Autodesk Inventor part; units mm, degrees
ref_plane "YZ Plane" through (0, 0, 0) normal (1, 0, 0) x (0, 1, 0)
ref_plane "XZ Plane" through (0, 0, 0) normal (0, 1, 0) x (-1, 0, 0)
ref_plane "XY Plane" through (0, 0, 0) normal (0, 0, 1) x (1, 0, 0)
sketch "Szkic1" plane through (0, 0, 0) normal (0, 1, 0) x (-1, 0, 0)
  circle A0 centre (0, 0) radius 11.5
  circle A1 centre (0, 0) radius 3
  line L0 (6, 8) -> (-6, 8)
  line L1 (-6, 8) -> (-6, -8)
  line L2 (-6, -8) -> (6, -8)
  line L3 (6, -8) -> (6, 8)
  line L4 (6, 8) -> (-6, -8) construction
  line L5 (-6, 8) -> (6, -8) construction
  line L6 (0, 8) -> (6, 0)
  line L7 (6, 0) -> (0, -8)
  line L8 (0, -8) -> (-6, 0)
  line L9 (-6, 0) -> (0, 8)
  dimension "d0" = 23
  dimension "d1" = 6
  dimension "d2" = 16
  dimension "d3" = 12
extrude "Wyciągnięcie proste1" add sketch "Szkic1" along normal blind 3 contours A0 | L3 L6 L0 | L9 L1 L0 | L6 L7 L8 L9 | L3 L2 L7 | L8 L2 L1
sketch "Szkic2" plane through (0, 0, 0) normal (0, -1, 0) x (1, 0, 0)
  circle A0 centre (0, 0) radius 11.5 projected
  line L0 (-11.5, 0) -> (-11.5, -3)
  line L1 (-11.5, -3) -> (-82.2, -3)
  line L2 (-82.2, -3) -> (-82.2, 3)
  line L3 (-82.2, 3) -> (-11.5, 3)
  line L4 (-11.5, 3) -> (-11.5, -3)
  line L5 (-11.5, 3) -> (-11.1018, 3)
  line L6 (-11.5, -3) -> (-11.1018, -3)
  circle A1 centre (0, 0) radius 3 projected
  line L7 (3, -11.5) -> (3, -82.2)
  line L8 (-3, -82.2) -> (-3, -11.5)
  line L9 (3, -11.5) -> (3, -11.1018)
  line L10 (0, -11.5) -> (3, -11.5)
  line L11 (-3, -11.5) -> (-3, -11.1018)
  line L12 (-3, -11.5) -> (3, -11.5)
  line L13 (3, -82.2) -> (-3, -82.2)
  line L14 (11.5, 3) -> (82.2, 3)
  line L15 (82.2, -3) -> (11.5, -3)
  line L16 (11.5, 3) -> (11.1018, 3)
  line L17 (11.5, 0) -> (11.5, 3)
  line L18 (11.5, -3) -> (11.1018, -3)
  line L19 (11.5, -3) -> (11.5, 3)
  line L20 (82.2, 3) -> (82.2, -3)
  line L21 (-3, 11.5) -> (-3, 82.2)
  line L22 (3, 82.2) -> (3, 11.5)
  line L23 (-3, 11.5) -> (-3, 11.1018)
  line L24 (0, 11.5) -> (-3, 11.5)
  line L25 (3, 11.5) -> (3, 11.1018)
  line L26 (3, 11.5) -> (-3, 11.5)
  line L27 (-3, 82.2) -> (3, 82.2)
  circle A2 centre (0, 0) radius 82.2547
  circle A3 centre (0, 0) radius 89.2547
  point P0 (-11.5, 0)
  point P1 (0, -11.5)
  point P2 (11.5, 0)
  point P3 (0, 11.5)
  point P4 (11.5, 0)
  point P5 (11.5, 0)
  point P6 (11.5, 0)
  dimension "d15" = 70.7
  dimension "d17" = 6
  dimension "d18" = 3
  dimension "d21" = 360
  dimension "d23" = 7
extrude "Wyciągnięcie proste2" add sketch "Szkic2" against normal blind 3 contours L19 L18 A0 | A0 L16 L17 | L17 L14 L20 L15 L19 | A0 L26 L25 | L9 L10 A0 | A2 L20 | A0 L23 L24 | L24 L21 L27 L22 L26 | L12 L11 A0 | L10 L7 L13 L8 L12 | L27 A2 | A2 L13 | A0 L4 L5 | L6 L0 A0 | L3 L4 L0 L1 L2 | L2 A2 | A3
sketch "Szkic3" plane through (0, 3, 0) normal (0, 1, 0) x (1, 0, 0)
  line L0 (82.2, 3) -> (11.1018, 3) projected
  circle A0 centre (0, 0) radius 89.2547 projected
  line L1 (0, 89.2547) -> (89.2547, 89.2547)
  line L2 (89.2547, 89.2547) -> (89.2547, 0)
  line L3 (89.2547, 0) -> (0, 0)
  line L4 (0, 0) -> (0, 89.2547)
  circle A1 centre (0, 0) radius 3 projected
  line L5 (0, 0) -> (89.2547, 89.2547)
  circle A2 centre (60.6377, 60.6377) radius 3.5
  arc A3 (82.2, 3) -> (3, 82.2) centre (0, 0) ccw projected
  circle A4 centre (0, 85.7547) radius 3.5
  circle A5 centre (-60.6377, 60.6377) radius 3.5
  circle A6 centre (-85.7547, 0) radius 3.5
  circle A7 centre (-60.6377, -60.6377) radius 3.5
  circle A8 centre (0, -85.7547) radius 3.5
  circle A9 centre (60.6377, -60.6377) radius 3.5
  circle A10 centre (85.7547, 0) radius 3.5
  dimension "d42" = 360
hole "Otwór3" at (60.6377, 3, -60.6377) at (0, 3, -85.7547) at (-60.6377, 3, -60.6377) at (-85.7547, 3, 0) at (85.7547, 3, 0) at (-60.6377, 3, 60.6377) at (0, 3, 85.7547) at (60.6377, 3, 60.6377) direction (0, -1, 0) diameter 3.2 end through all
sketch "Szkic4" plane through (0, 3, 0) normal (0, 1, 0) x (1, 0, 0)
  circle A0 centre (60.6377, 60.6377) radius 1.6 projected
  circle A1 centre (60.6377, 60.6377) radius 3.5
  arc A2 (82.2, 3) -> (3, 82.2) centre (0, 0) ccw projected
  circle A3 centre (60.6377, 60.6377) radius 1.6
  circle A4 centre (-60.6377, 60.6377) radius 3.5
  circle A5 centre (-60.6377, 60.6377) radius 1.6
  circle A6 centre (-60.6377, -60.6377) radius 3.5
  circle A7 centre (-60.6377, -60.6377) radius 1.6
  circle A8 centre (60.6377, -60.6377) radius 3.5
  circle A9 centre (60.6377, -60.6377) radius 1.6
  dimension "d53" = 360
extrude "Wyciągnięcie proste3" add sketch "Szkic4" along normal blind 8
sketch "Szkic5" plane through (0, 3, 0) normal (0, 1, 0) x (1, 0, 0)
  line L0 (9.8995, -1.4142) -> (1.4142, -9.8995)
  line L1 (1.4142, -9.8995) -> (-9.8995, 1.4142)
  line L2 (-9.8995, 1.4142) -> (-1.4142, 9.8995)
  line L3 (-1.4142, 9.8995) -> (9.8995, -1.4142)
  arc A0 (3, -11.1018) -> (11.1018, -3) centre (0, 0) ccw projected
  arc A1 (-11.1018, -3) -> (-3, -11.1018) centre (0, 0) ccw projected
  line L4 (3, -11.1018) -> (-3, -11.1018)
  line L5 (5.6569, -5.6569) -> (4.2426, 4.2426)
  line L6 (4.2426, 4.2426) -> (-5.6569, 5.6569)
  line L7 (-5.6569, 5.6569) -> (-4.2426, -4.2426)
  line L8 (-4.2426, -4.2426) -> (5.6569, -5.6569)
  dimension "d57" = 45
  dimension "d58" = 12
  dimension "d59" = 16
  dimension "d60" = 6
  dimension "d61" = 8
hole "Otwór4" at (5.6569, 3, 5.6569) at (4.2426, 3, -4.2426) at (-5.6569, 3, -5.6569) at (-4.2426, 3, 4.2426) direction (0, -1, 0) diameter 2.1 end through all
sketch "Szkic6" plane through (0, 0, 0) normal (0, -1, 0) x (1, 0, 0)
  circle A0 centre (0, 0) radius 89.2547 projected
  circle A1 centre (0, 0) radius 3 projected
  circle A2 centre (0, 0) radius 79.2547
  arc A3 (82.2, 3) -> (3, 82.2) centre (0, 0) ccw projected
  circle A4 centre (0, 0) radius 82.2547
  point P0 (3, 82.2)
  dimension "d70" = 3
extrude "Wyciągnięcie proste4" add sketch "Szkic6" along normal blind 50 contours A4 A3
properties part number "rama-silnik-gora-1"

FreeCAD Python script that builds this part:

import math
import FreeCAD as App
import Part
import Sketcher

V = App.Vector

doc = App.newDocument("Part")
body = doc.addObject("PartDesign::Body", "Body")

# Sketch on XZ plane
sketch1 = doc.addObject("Sketcher::SketchObject", "Sketch")
body.addObject(sketch1)
sketch1.AttachmentSupport = (doc.XZ_Plane, [""])
sketch1.MapMode = "FlatFace"
sketch1.addGeometry([
    Part.Circle(V(0, 0, 0), V(0, 0, 1), 11.5),
    Part.Circle(V(0, 0, 0), V(0, 0, 1), 3),
], False)
sketch1.addConstraint([
    Sketcher.Constraint("Coincident", 0, 3, -1, 1),
    Sketcher.Constraint("Coincident", 1, 3, -1, 1),
    Sketcher.Constraint("Diameter", 0, 23.0),
    Sketcher.Constraint("Diameter", 1, 6.0),
])
pad1 = doc.addObject("PartDesign::Pad", "Pad")
body.addObject(pad1)
pad1.Profile = sketch1
pad1.Length = 3
pad1.Reversed = True

# Sketch on XZ plane
sketch2 = doc.addObject("Sketcher::SketchObject", "Sketch001")
body.addObject(sketch2)
sketch2.AttachmentSupport = (doc.XZ_Plane, [""])
sketch2.MapMode = "FlatFace"
sketch2.addGeometry([
    Part.Circle(V(0, 0, 0), V(0, 0, 1), 89.2547),  # 0
    Part.LineSegment(V(11.1018, -3, 0), V(82.2, -3, 0)),  # 1
    Part.ArcOfCircle(Part.Circle(V(0, 0, 0), V(0, 0, 1), 82.2547), math.radians(-87.909841), math.radians(-2.090159)),  # 2
    Part.LineSegment(V(3, -82.2, 0), V(3, -11.1018, 0)),  # 3
    Part.ArcOfCircle(Part.Circle(V(0, 0, 0), V(0, 0, 1), 11.5), math.radians(-105.121667), math.radians(-74.878333)),  # 4
    Part.LineSegment(V(-3, -11.1018, 0), V(-3, -82.2, 0)),  # 5
    Part.ArcOfCircle(Part.Circle(V(0, 0, 0), V(0, 0, 1), 82.2547), math.radians(-177.909841), math.radians(-92.090159)),  # 6
    Part.LineSegment(V(-82.2, -3, 0), V(-11.1018, -3, 0)),  # 7
    Part.ArcOfCircle(Part.Circle(V(0, 0, 0), V(0, 0, 1), 11.5), math.radians(164.878333), math.radians(195.121667)),  # 8
    Part.LineSegment(V(-11.1018, 3, 0), V(-82.2, 3, 0)),  # 9
    Part.ArcOfCircle(Part.Circle(V(0, 0, 0), V(0, 0, 1), 82.2547), math.radians(92.090159), math.radians(177.909841)),  # 10
    Part.LineSegment(V(-3, 82.2, 0), V(-3, 11.1018, 0)),  # 11
    Part.ArcOfCircle(Part.Circle(V(0, 0, 0), V(0, 0, 1), 11.5), math.radians(74.878333), math.radians(105.121667)),  # 12
    Part.LineSegment(V(3, 11.1018, 0), V(3, 82.2, 0)),  # 13
    Part.ArcOfCircle(Part.Circle(V(0, 0, 0), V(0, 0, 1), 82.2547), math.radians(2.090159), math.radians(87.909841)),  # 14
    Part.LineSegment(V(82.2, 3, 0), V(11.1018, 3, 0)),  # 15
    Part.ArcOfCircle(Part.Circle(V(0, 0, 0), V(0, 0, 1), 11.5), math.radians(-15.121667), math.radians(15.121667)),  # 16
], False)
sketch2.addConstraint([
    Sketcher.Constraint("Coincident", 1, 2, 2, 2),
    Sketcher.Constraint("Coincident", 2, 1, 3, 1),
    Sketcher.Constraint("Coincident", 3, 2, 4, 2),
    Sketcher.Constraint("Coincident", 4, 1, 5, 1),
    Sketcher.Constraint("Coincident", 5, 2, 6, 2),
    Sketcher.Constraint("Coincident", 6, 1, 7, 1),
    Sketcher.Constraint("Coincident", 7, 2, 8, 2),
    Sketcher.Constraint("Coincident", 8, 1, 9, 1),
    Sketcher.Constraint("Coincident", 9, 2, 10, 2),
    Sketcher.Constraint("Coincident", 10, 1, 11, 1),
    Sketcher.Constraint("Coincident", 11, 2, 12, 2),
    Sketcher.Constraint("Coincident", 12, 1, 13, 1),
    Sketcher.Constraint("Coincident", 13, 2, 14, 2),
    Sketcher.Constraint("Coincident", 14, 1, 15, 1),
    Sketcher.Constraint("Coincident", 15, 2, 16, 2),
    Sketcher.Constraint("Coincident", 16, 1, 1, 1),
    Sketcher.Constraint("Horizontal", 1),
    Sketcher.Constraint("Vertical", 3),
    Sketcher.Constraint("Vertical", 5),
    Sketcher.Constraint("Horizontal", 7),
    Sketcher.Constraint("Horizontal", 9),
    Sketcher.Constraint("Vertical", 11),
    Sketcher.Constraint("Vertical", 13),
    Sketcher.Constraint("Horizontal", 15),
    Sketcher.Constraint("Coincident", 0, 3, -1, 1),
    Sketcher.Constraint("Coincident", 2, 3, -1, 1),
    Sketcher.Constraint("Coincident", 4, 3, -1, 1),
    Sketcher.Constraint("Coincident", 6, 3, -1, 1),
    Sketcher.Constraint("Coincident", 8, 3, -1, 1),
    Sketcher.Constraint("Coincident", 10, 3, -1, 1),
    Sketcher.Constraint("Coincident", 12, 3, -1, 1),
    Sketcher.Constraint("Coincident", 14, 3, -1, 1),
    Sketcher.Constraint("Coincident", 16, 3, -1, 1),
    Sketcher.Constraint("Equal", 2, 6),
    Sketcher.Constraint("Equal", 4, 8),
    Sketcher.Constraint("Equal", 6, 10),
    Sketcher.Constraint("Equal", 8, 12),
    Sketcher.Constraint("Equal", 10, 14),
    Sketcher.Constraint("Equal", 12, 16),
    Sketcher.Constraint("Horizontal", 3, 2, 4, 1),
    Sketcher.Constraint("Horizontal", 1, 2, 6, 1),
    Sketcher.Constraint("Horizontal", 11, 2, 12, 1),
    Sketcher.Constraint("Horizontal", 9, 2, 14, 1),
    Sketcher.Constraint("Vertical", 7, 2, 8, 1),
    Sketcher.Constraint("Vertical", 5, 2, 10, 1),
    Sketcher.Constraint("Equal", 15, 3),
    Sketcher.Constraint("DistanceY", 1, 2, -1, 1, 3.0),
    Sketcher.Constraint("Radius", 4, 11.5),
    Sketcher.Constraint("Diameter", 0, 178.5094),
    Sketcher.Constraint("DistanceX", -1, 1, 1, 2, 82.2),
])
pad2 = doc.addObject("PartDesign::Pad", "Pad001")
body.addObject(pad2)
pad2.Profile = sketch2
pad2.Length = 3
pad2.Reversed = True

# Sketch on XZ plane
sketch3 = doc.addObject("Sketcher::SketchObject", "Sketch002")
body.addObject(sketch3)
sketch3.AttachmentSupport = (doc.XZ_Plane, [""])
sketch3.MapMode = "FlatFace"
sketch3.AttachmentOffset = App.Placement(V(0, 0, -3), App.Rotation())
sketch3.addGeometry([
    Part.Circle(V(60.6377, -60.6377, 0), V(0, 0, 1), 1.6),  # 0
    Part.Circle(V(0, -85.7547, 0), V(0, 0, 1), 1.6),  # 1
    Part.Circle(V(-60.6377, -60.6377, 0), V(0, 0, 1), 1.6),  # 2
    Part.Circle(V(-85.7547, 0, 0), V(0, 0, 1), 1.6),  # 3
    Part.Circle(V(85.7547, 0, 0), V(0, 0, 1), 1.6),  # 4
    Part.Circle(V(-60.6377, 60.6377, 0), V(0, 0, 1), 1.6),  # 5
    Part.Circle(V(0, 85.7547, 0), V(0, 0, 1), 1.6),  # 6
    Part.Circle(V(60.6377, 60.6377, 0), V(0, 0, 1), 1.6),  # 7
], False)
sketch3.addConstraint([
    Sketcher.Constraint("Equal", 0, 1),
    Sketcher.Constraint("Equal", 1, 2),
    Sketcher.Constraint("Equal", 2, 3),
    Sketcher.Constraint("Equal", 3, 4),
    Sketcher.Constraint("Equal", 4, 5),
    Sketcher.Constraint("Equal", 5, 6),
    Sketcher.Constraint("Equal", 6, 7),
    Sketcher.Constraint("Symmetric", 3, 3, 4, 3, -1, 1),
    Sketcher.Constraint("Symmetric", 0, 3, 5, 3, -1, 1),
    Sketcher.Constraint("Symmetric", 1, 3, 6, 3, -1, 1),
    Sketcher.Constraint("Symmetric", 2, 3, 7, 3, -1, 1),
    Sketcher.Constraint("Symmetric", 0, 3, 2, 3, -2),
    Sketcher.Constraint("PointOnObject", 1, 3, -2),
    Sketcher.Constraint("PointOnObject", 3, 3, -1),
    Sketcher.Constraint("Diameter", 0, 3.2),
    Sketcher.Constraint("DistanceY", 1, 3, 0, 3, 25.117),
    Sketcher.Constraint("DistanceX", 3, 3, 2, 3, 25.117),
    Sketcher.Constraint("DistanceX", -1, 1, 0, 3, 60.6377),
    Sketcher.Constraint("DistanceY", 0, 3, -1, 1, 60.6377),
])
doc.recompute()
hole = doc.addObject("PartDesign::Hole", "Hole")
body.addObject(hole)
hole.Profile = sketch3
hole.ThreadType = "None"
hole.Diameter = 3.2
hole.DepthType = "ThroughAll"
hole.Reversed = True

# Sketch on XZ plane
sketch4 = doc.addObject("Sketcher::SketchObject", "Sketch003")
body.addObject(sketch4)
sketch4.AttachmentSupport = (doc.XZ_Plane, [""])
sketch4.MapMode = "FlatFace"
sketch4.AttachmentOffset = App.Placement(V(0, 0, -3), App.Rotation())
sketch4.addGeometry([
    Part.Circle(V(60.6377, -60.6377, 0), V(0, 0, 1), 3.5),  # 0
    Part.Circle(V(60.6377, -60.6377, 0), V(0, 0, 1), 1.6),  # 1
    Part.Circle(V(-60.6377, -60.6377, 0), V(0, 0, 1), 3.5),  # 2
    Part.Circle(V(-60.6377, -60.6377, 0), V(0, 0, 1), 1.6),  # 3
    Part.Circle(V(-60.6377, 60.6377, 0), V(0, 0, 1), 3.5),  # 4
    Part.Circle(V(-60.6377, 60.6377, 0), V(0, 0, 1), 1.6),  # 5
    Part.Circle(V(60.6377, 60.6377, 0), V(0, 0, 1), 3.5),  # 6
    Part.Circle(V(60.6377, 60.6377, 0), V(0, 0, 1), 1.6),  # 7
], False)
sketch4.addConstraint([
    Sketcher.Constraint("Coincident", 1, 3, 0, 3),
    Sketcher.Constraint("Coincident", 3, 3, 2, 3),
    Sketcher.Constraint("Coincident", 5, 3, 4, 3),
    Sketcher.Constraint("Coincident", 7, 3, 6, 3),
    Sketcher.Constraint("Equal", 0, 2),
    Sketcher.Constraint("Equal", 1, 3),
    Sketcher.Constraint("Equal", 2, 4),
    Sketcher.Constraint("Equal", 3, 5),
    Sketcher.Constraint("Equal", 4, 6),
    Sketcher.Constraint("Equal", 5, 7),
    Sketcher.Constraint("Symmetric", 0, 3, 4, 3, -1, 1),
    Sketcher.Constraint("Symmetric", 2, 3, 6, 3, -1, 1),
    Sketcher.Constraint("Symmetric", 0, 3, 2, 3, -2),
    Sketcher.Constraint("Diameter", 0, 7.0),
    Sketcher.Constraint("Diameter", 1, 3.2),
    Sketcher.Constraint("DistanceX", -1, 1, 0, 3, 60.6377),
    Sketcher.Constraint("DistanceY", 0, 3, -1, 1, 60.6377),
])
pad3 = doc.addObject("PartDesign::Pad", "Pad002")
body.addObject(pad3)
pad3.Profile = sketch4
pad3.Length = 8
pad3.Reversed = True

# Sketch on XZ plane
sketch5 = doc.addObject("Sketcher::SketchObject", "Sketch004")
body.addObject(sketch5)
sketch5.AttachmentSupport = (doc.XZ_Plane, [""])
sketch5.MapMode = "FlatFace"
sketch5.AttachmentOffset = App.Placement(V(0, 0, -3), App.Rotation())
sketch5.addGeometry([
    Part.Circle(V(5.6569, 5.6569, 0), V(0, 0, 1), 1.05),
    Part.Circle(V(4.2426, -4.2426, 0), V(0, 0, 1), 1.05),
    Part.Circle(V(-5.6569, -5.6569, 0), V(0, 0, 1), 1.05),
    Part.Circle(V(-4.2426, 4.2426, 0), V(0, 0, 1), 1.05),
], False)
sketch5.addConstraint([
    Sketcher.Constraint("Equal", 0, 1),
    Sketcher.Constraint("Equal", 1, 2),
    Sketcher.Constraint("Equal", 2, 3),
    Sketcher.Constraint("Symmetric", 0, 3, 2, 3, -1, 1),
    Sketcher.Constraint("Symmetric", 1, 3, 3, 3, -1, 1),
    Sketcher.Constraint("Diameter", 0, 2.1),
    Sketcher.Constraint("DistanceX", -1, 1, 0, 3, 5.657),
    Sketcher.Constraint("DistanceY", -1, 1, 0, 3, 5.657),
    Sketcher.Constraint("DistanceX", -1, 1, 1, 3, 4.2426),
    Sketcher.Constraint("DistanceY", 1, 3, -1, 1, 4.2426),
])
doc.recompute()
hole2 = doc.addObject("PartDesign::Hole", "Hole001")
body.addObject(hole2)
hole2.Profile = sketch5
hole2.ThreadType = "None"
hole2.Diameter = 2.1
hole2.DepthType = "ThroughAll"
hole2.Reversed = True

# Sketch on XZ plane
sketch6 = doc.addObject("Sketcher::SketchObject", "Sketch005")
body.addObject(sketch6)
sketch6.AttachmentSupport = (doc.XZ_Plane, [""])
sketch6.MapMode = "FlatFace"
sketch6.addGeometry([
    Part.Circle(V(0, 0, 0), V(0, 0, 1), 82.254726),
    Part.Circle(V(0, 0, 0), V(0, 0, 1), 79.2547),
], False)
sketch6.addConstraint([
    Sketcher.Constraint("Coincident", 0, 3, -1, 1),
    Sketcher.Constraint("Coincident", 1, 3, -1, 1),
    Sketcher.Constraint("Diameter", 0, 164.5095),
    Sketcher.Constraint("Diameter", 1, 158.5094),
])
pad4 = doc.addObject("PartDesign::Pad", "Pad003")
body.addObject(pad4)
pad4.Profile = sketch6
pad4.Length = 50

doc.recompute()
